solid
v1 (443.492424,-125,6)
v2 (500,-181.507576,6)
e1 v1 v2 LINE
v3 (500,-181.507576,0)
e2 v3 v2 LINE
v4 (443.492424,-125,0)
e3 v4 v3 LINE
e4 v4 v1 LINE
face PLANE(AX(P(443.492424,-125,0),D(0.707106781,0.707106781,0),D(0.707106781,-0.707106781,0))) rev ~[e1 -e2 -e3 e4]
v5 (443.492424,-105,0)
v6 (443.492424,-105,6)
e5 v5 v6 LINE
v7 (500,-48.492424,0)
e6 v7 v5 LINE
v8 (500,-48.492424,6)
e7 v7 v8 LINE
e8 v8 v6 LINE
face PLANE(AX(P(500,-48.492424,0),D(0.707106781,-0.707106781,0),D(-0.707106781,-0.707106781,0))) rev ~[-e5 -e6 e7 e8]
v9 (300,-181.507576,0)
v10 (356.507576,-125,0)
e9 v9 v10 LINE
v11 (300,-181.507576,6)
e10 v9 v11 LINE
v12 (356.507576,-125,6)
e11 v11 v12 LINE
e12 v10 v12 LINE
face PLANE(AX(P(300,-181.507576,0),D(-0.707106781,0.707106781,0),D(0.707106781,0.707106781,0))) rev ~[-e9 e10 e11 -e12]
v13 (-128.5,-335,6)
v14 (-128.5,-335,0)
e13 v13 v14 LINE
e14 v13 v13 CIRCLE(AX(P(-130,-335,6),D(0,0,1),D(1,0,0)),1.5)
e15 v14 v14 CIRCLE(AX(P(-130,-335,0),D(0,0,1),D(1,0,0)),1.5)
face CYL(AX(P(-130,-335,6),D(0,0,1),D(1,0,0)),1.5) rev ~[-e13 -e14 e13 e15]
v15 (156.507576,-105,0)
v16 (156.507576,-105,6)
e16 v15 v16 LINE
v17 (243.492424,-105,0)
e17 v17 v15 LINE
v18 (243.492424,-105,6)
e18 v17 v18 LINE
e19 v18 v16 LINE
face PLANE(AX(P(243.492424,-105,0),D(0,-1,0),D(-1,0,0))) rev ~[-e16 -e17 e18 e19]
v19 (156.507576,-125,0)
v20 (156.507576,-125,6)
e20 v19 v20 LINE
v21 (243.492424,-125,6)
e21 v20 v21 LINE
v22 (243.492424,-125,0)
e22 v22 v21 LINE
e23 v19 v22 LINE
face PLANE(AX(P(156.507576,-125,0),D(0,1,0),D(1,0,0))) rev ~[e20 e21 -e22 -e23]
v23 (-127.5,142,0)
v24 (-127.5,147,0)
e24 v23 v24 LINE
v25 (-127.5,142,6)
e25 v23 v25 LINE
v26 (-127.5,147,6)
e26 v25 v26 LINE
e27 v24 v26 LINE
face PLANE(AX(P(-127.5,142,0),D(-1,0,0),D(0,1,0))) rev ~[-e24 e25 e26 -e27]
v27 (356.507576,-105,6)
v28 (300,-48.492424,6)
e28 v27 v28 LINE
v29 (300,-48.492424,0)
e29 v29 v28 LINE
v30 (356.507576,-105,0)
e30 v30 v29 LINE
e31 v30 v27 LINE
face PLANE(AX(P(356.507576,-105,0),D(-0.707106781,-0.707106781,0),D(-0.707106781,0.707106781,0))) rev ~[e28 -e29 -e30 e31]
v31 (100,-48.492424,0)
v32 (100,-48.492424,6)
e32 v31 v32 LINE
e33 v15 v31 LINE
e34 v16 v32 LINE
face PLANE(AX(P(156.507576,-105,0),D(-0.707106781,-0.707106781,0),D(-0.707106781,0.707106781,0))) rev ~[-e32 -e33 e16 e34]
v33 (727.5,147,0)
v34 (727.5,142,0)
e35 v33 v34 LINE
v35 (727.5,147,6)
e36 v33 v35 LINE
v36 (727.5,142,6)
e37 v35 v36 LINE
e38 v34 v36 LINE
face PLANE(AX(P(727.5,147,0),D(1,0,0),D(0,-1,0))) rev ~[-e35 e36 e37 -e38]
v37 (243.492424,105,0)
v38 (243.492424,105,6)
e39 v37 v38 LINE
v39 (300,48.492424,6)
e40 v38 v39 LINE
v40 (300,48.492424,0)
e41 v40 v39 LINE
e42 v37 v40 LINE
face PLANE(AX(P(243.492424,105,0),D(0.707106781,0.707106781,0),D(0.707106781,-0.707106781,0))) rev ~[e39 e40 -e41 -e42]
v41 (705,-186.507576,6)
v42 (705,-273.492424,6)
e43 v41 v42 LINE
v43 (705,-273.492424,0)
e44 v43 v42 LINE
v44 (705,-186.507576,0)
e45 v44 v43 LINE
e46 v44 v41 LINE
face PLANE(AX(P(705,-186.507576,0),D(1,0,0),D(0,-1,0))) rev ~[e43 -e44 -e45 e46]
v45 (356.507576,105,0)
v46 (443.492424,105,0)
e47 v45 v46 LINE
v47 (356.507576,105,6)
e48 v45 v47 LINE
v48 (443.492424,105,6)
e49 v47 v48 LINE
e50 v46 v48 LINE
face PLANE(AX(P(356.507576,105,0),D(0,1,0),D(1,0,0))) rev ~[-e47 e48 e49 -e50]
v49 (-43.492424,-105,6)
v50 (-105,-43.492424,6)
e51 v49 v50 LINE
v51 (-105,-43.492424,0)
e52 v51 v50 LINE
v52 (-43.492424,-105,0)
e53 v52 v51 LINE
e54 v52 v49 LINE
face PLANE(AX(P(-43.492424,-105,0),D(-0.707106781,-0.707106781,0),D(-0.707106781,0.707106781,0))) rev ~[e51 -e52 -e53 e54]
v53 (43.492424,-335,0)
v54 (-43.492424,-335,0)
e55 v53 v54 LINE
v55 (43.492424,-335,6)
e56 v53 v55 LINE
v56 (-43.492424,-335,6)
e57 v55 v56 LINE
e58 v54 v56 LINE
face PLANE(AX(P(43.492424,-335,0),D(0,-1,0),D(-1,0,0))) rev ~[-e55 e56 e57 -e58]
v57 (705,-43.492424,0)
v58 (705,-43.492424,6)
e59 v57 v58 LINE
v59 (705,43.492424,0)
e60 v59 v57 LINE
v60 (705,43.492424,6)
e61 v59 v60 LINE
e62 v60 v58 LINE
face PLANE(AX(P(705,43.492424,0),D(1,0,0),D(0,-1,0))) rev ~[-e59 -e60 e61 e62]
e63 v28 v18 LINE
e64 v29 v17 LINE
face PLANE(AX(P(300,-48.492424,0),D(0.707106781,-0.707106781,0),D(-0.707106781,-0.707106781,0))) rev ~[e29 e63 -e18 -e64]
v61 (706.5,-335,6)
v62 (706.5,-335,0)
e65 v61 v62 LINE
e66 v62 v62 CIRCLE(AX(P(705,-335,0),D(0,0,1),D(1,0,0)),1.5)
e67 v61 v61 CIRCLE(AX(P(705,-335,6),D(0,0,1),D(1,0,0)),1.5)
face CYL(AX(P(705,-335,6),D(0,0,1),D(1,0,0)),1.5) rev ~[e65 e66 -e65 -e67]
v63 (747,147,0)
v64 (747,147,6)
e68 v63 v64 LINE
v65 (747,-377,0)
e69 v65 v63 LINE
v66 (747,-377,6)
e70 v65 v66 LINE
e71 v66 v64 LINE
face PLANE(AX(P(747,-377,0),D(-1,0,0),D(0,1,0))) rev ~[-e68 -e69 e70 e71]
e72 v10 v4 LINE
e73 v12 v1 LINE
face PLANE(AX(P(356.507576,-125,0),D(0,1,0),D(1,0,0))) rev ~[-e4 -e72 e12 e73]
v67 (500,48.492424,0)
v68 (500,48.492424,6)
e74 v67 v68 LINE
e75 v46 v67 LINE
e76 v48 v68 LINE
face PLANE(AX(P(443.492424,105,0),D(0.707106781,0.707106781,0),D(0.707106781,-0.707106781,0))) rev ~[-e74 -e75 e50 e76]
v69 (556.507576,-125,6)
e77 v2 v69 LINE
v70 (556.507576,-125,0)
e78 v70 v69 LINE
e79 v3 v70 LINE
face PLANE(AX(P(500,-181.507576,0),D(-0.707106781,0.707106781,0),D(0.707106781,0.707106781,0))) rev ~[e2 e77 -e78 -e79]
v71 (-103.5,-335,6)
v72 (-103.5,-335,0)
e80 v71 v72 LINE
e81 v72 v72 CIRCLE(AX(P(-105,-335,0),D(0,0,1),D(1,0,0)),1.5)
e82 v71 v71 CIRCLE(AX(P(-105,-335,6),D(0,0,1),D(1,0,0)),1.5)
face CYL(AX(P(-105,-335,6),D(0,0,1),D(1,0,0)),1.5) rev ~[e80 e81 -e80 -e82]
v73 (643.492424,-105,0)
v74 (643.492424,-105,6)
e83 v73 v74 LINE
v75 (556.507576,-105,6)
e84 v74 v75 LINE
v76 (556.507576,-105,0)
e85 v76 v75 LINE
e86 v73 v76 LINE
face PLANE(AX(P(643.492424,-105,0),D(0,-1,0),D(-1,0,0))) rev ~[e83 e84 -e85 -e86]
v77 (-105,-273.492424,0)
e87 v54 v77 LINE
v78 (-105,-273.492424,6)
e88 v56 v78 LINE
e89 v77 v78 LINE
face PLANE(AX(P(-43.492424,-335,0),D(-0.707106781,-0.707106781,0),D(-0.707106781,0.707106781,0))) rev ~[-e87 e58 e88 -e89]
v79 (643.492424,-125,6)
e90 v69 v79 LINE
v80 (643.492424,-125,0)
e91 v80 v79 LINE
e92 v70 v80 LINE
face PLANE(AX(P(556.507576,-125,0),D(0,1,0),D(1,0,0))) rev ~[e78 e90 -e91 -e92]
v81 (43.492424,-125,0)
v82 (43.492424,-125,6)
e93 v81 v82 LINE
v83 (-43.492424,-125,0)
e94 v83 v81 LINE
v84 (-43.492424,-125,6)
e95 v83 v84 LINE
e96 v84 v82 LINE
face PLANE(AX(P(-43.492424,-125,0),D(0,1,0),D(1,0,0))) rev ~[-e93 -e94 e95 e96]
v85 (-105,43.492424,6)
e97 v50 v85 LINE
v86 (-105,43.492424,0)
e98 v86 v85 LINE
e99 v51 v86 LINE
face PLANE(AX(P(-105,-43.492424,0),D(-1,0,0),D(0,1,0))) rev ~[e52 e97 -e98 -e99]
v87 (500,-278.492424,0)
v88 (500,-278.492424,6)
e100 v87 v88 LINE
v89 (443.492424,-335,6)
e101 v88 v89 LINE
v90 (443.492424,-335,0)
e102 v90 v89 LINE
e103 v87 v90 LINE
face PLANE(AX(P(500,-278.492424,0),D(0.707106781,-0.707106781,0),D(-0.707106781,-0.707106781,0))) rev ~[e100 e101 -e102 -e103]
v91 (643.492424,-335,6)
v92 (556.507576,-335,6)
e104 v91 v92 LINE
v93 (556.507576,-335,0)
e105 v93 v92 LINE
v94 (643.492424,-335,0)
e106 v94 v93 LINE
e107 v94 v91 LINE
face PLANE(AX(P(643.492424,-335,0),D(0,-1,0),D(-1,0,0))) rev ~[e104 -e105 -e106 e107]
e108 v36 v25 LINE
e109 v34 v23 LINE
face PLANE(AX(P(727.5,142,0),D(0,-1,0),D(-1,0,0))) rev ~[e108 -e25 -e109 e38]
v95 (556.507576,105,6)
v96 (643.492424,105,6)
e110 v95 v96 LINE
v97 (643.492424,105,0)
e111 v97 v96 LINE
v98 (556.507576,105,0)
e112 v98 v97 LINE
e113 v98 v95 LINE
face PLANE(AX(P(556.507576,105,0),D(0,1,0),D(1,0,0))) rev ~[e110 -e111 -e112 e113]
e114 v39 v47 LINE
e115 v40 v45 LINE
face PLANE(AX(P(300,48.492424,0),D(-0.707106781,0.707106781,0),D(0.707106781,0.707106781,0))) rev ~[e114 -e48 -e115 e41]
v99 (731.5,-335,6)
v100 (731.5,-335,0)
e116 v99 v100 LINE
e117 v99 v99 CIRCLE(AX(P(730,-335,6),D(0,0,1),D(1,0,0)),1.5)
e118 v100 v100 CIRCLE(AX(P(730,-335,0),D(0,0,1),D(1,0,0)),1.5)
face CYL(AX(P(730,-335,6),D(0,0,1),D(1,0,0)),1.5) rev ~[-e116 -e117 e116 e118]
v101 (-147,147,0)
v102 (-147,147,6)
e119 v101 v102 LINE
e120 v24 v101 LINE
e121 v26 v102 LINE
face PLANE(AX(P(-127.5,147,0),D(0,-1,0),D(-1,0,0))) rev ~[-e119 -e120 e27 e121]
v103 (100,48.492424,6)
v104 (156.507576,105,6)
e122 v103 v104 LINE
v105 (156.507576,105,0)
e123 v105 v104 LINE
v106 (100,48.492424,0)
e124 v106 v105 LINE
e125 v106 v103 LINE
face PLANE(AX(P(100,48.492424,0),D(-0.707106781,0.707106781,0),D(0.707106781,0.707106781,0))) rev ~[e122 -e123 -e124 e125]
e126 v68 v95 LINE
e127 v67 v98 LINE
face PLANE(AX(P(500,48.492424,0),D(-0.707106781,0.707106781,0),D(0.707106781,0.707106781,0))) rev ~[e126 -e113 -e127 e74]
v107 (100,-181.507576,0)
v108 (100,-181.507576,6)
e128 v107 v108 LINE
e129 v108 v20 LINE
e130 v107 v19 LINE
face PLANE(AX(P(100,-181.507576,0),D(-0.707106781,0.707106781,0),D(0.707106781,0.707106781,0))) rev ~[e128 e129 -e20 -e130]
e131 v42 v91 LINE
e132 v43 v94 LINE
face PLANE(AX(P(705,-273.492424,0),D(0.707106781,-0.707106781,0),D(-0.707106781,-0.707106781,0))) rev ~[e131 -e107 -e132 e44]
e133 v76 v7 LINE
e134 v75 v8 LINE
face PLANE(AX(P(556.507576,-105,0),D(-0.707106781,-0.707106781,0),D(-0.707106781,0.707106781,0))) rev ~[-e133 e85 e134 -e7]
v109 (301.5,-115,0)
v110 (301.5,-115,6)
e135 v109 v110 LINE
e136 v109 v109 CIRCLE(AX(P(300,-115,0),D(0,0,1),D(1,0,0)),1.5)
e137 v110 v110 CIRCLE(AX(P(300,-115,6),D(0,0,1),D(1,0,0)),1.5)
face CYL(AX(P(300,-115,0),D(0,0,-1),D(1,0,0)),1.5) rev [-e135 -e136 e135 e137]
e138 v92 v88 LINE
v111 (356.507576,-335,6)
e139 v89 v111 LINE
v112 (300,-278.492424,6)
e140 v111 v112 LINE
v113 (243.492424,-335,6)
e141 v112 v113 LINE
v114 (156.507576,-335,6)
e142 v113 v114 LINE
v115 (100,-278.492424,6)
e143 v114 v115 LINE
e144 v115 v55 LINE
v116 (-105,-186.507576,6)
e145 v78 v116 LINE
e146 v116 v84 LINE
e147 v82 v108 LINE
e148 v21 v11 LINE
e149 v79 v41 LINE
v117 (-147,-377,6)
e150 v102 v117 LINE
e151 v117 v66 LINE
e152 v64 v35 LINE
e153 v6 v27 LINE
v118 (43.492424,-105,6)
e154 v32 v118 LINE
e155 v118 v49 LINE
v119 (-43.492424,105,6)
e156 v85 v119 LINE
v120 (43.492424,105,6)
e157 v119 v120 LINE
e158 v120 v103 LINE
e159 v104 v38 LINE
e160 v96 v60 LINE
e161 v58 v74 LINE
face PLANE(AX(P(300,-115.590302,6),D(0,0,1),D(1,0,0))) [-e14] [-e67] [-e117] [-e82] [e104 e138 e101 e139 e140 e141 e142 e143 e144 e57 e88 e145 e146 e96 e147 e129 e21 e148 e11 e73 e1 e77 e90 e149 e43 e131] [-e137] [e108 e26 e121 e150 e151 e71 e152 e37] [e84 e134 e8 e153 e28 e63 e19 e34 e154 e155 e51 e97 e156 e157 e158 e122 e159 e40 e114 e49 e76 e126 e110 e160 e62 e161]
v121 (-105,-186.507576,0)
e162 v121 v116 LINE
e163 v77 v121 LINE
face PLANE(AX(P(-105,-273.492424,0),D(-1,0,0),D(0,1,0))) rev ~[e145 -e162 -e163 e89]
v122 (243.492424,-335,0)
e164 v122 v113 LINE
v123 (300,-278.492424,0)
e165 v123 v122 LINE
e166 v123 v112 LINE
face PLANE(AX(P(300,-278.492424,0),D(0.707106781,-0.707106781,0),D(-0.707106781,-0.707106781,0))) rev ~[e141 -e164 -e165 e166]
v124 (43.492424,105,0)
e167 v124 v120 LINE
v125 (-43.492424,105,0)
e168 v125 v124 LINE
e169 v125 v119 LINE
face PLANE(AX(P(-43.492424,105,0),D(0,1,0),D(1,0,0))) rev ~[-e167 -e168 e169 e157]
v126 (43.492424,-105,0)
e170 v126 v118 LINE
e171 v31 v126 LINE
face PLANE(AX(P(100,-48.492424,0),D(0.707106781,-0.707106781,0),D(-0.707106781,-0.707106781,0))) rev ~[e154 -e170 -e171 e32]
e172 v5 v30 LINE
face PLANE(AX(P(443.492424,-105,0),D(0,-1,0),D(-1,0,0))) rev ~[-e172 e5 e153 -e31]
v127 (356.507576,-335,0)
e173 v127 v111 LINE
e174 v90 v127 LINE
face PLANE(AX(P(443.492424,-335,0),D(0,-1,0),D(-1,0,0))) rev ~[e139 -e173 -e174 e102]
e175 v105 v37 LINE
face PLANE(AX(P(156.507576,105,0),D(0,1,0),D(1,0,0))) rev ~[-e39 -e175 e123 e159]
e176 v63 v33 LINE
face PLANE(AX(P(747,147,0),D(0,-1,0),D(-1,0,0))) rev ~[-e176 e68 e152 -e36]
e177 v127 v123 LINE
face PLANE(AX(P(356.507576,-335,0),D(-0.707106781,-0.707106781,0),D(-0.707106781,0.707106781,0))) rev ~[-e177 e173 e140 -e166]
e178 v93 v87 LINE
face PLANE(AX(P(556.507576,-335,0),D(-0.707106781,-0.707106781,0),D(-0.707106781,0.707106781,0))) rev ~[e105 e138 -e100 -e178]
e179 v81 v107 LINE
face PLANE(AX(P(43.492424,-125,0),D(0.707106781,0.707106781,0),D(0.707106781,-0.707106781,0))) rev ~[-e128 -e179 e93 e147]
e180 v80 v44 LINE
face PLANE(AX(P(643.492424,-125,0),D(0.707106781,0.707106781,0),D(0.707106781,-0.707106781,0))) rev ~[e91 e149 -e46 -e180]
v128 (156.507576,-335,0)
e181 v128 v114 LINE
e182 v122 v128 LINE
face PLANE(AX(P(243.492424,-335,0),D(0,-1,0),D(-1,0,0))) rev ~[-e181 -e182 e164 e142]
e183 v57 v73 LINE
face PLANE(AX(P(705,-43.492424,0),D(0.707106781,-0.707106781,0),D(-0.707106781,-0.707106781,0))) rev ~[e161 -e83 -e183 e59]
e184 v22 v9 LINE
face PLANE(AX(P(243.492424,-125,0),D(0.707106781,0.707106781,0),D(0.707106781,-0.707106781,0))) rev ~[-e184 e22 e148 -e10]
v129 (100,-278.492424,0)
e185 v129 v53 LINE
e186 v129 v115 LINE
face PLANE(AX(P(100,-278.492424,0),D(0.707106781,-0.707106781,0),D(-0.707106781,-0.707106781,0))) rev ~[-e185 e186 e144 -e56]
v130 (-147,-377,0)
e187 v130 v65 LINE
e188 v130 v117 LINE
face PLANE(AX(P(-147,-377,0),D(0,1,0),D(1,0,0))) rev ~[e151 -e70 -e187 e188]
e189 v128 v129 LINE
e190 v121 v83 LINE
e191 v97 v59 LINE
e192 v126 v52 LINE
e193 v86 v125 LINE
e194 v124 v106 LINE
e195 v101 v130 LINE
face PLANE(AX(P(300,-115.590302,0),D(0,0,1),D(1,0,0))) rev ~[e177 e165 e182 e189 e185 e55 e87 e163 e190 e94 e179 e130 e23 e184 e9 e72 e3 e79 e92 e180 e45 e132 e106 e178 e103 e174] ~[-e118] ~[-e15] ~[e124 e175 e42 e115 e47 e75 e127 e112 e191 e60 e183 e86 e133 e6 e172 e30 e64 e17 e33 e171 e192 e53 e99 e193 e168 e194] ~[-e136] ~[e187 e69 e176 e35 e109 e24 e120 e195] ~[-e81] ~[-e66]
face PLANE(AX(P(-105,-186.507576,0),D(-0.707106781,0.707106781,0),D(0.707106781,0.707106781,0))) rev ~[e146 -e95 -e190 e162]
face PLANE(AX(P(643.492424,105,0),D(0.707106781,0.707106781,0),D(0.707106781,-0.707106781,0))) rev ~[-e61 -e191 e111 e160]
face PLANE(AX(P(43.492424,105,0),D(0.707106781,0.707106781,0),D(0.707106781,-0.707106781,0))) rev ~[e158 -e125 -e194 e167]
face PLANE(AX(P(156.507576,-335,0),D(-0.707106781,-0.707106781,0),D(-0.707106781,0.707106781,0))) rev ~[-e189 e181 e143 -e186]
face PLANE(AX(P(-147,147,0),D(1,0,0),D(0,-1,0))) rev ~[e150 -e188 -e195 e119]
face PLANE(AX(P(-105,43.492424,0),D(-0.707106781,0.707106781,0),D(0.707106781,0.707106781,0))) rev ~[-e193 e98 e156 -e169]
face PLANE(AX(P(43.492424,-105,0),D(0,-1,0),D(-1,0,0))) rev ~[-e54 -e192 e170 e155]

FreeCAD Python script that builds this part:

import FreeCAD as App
import Part
import Sketcher
Q = App.Units.Quantity


def add_polygon(sketch, points):
    """Adds a closed chain of lines whose ends are joined by coincident constraints."""
    first, n = sketch.GeometryCount, len(points)
    for a, b in zip(points, points[1:] + points[:1]):
        sketch.addGeometry(Part.LineSegment(App.Vector(*a, 0), App.Vector(*b, 0)), False)
    for i in range(n):
        sketch.addConstraint(Sketcher.Constraint("Coincident", first + i, 2, first + (i + 1) % n, 1))

doc = App.newDocument("Part")
body = doc.addObject("PartDesign::Body", "Body")

# Sketch on XY plane
sketch1 = doc.addObject("Sketcher::SketchObject", "Sketch")
body.addObject(sketch1)
sketch1.AttachmentSupport = (doc.XY_Plane, [""])
sketch1.MapMode = "FlatFace"
add_polygon(sketch1, [(-127.5, 147), (-147, 147), (-147, -377), (747, -377), (747, 147), (727.5, 147), (727.5, 142), (-127.5, 142)])  # lines 0-7
add_polygon(sketch1, [(100, -278.5), (43.5, -335), (-43.5, -335), (-105, -273.5), (-105, -186.5), (-43.5, -125), (43.5, -125), (100, -181.5), (156.5, -125), (243.5, -125), (300, -181.5), (356.5, -125), (443.5, -125), (500, -181.5), (556.5, -125), (643.5, -125), (705, -186.5), (705, -273.5), (643.5, -335), (556.5, -335), (500, -278.5), (443.5, -335), (356.5, -335), (300, -278.5), (243.5, -335), (156.5, -335)])  # lines 8-33
sketch1.addGeometry(Part.Circle(App.Vector(300, -115, 0), App.Vector(0, 0, 1), 1.5), False)  # 34
add_polygon(sketch1, [(-43.5, 105), (43.5, 105), (100, 48.5), (156.5, 105), (243.5, 105), (300, 48.5), (356.5, 105), (443.5, 105), (500, 48.5), (556.5, 105), (643.5, 105), (705, 43.5), (705, -43.5), (643.5, -105), (556.5, -105), (500, -48.5), (443.5, -105), (356.5, -105), (300, -48.5), (243.5, -105), (156.5, -105), (100, -48.5), (43.5, -105), (-43.5, -105), (-105, -43.5), (-105, 43.5)])  # lines 35-60
sketch1.addConstraint([
    Sketcher.Constraint("Horizontal", 0),
    Sketcher.Constraint("Vertical", 1),
    Sketcher.Constraint("Horizontal", 2),
    Sketcher.Constraint("Vertical", 3),
    Sketcher.Constraint("Horizontal", 4),
    Sketcher.Constraint("Vertical", 5),
    Sketcher.Constraint("Horizontal", 6),
    Sketcher.Constraint("Vertical", 7),
    Sketcher.Constraint("Horizontal", 9),
    Sketcher.Constraint("Vertical", 11),
    Sketcher.Constraint("Horizontal", 13),
    Sketcher.Constraint("Horizontal", 16),
    Sketcher.Constraint("Horizontal", 19),
    Sketcher.Constraint("Horizontal", 22),
    Sketcher.Constraint("Vertical", 24),
    Sketcher.Constraint("Horizontal", 26),
    Sketcher.Constraint("Horizontal", 29),
    Sketcher.Constraint("Horizontal", 32),
    Sketcher.Constraint("Horizontal", 35),
    Sketcher.Constraint("Horizontal", 38),
    Sketcher.Constraint("Horizontal", 41),
    Sketcher.Constraint("Horizontal", 44),
    Sketcher.Constraint("Vertical", 46),
    Sketcher.Constraint("Horizontal", 48),
    Sketcher.Constraint("Horizontal", 51),
    Sketcher.Constraint("Horizontal", 54),
    Sketcher.Constraint("Horizontal", 57),
    Sketcher.Constraint("Vertical", 59),
    Sketcher.Constraint("Symmetric", 35, 2, 57, 2, -1, 1),
    Sketcher.Constraint("Symmetric", 44, 2, 47, 2, -1),
    Sketcher.Constraint("Symmetric", 42, 2, 49, 2, -1),
    Sketcher.Constraint("Symmetric", 41, 2, 50, 2, -1),
    Sketcher.Constraint("Symmetric", 39, 2, 52, 2, -1),
    Sketcher.Constraint("Symmetric", 38, 2, 53, 2, -1),
    Sketcher.Constraint("Symmetric", 36, 2, 55, 2, -1),
    Sketcher.Constraint("Perpendicular", 8, 10),
    Sketcher.Constraint("Perpendicular", 10, 12),
    Sketcher.Constraint("Perpendicular", 12, 14),
    Sketcher.Constraint("Perpendicular", 14, 15),
    Sketcher.Constraint("Perpendicular", 15, 17),
    Sketcher.Constraint("Perpendicular", 17, 18),
    Sketcher.Constraint("Perpendicular", 18, 20),
    Sketcher.Constraint("Perpendicular", 20, 21),
    Sketcher.Constraint("Perpendicular", 21, 23),
    Sketcher.Constraint("Perpendicular", 23, 25),
    Sketcher.Constraint("Perpendicular", 25, 27),
    Sketcher.Constraint("Perpendicular", 27, 28),
    Sketcher.Constraint("Perpendicular", 28, 30),
    Sketcher.Constraint("Perpendicular", 30, 31),
    Sketcher.Constraint("Perpendicular", 31, 33),
    Sketcher.Constraint("Parallel", 33, 36),
    Sketcher.Constraint("Perpendicular", 36, 37),
    Sketcher.Constraint("Perpendicular", 37, 39),
    Sketcher.Constraint("Perpendicular", 39, 40),
    Sketcher.Constraint("Perpendicular", 40, 42),
    Sketcher.Constraint("Perpendicular", 42, 43),
    Sketcher.Constraint("Perpendicular", 43, 45),
    Sketcher.Constraint("Perpendicular", 45, 47),
    Sketcher.Constraint("Perpendicular", 47, 49),
    Sketcher.Constraint("Perpendicular", 49, 50),
    Sketcher.Constraint("Perpendicular", 50, 52),
    Sketcher.Constraint("Perpendicular", 53, 55),
    Sketcher.Constraint("Perpendicular", 55, 56),
    Sketcher.Constraint("Perpendicular", 56, 58),
    Sketcher.Constraint("Perpendicular", 58, 60),
    Sketcher.Constraint("Horizontal", 0, 2, 3, 2),
    Sketcher.Constraint("Horizontal", 13, 2, 15, 2),
    Sketcher.Constraint("Horizontal", 14, 2, 17, 2),
    Sketcher.Constraint("Horizontal", 16, 2, 18, 2),
    Sketcher.Constraint("Horizontal", 17, 2, 20, 2),
    Sketcher.Constraint("Horizontal", 19, 2, 21, 2),
    Sketcher.Constraint("Horizontal", 11, 2, 23, 2),
    Sketcher.Constraint("Horizontal", 10, 2, 24, 2),
    Sketcher.Constraint("Horizontal", 9, 2, 25, 2),
    Sketcher.Constraint("Horizontal", 26, 2, 28, 2),
    Sketcher.Constraint("Horizontal", 27, 2, 30, 2),
    Sketcher.Constraint("Horizontal", 29, 2, 31, 2),
    Sketcher.Constraint("Horizontal", 30, 2, 33, 2),
    Sketcher.Constraint("Horizontal", 35, 2, 37, 2),
    Sketcher.Constraint("Horizontal", 36, 2, 39, 2),
    Sketcher.Constraint("Horizontal", 38, 2, 40, 2),
    Sketcher.Constraint("Horizontal", 39, 2, 42, 2),
    Sketcher.Constraint("Horizontal", 41, 2, 43, 2),
    Sketcher.Constraint("Horizontal", 46, 2, 58, 2),
    Sketcher.Constraint("Horizontal", 45, 2, 59, 2),
    Sketcher.Constraint("Vertical", 9, 2, 12, 2),
    Sketcher.Constraint("Vertical", 8, 2, 13, 2),
    Sketcher.Constraint("Vertical", 34, 3, 17, 2),
    Sketcher.Constraint("Vertical", 21, 2, 26, 2),
    Sketcher.Constraint("Vertical", 20, 2, 27, 2),
    Sketcher.Constraint("Vertical", 18, 2, 29, 2),
    Sketcher.Constraint("Vertical", 13, 2, 35, 2),
    Sketcher.Constraint("Vertical", 33, 2, 36, 2),
    Sketcher.Constraint("Vertical", 31, 2, 38, 2),
    Sketcher.Constraint("Vertical", 28, 2, 41, 2),
    Sketcher.Constraint("Vertical", 25, 2, 44, 2),
    Sketcher.Constraint("Vertical", 24, 2, 45, 2),
    Sketcher.Constraint("Vertical", 12, 2, 57, 2),
    Sketcher.Constraint("Equal", 0, 4),
    Sketcher.Constraint("Equal", 13, 16),
    Sketcher.Constraint("Equal", 16, 19),
    Sketcher.Constraint("Equal", 19, 22),
    Sketcher.Constraint("Equal", 57, 11),
    Sketcher.Constraint("Equal", 24, 46),
    Sketcher.Constraint("Diameter", 34, Q("3 mm")),
    Sketcher.Constraint("DistanceX", 2, 1, 2, 2, Q("894 mm")),
    Sketcher.Constraint("DistanceX", 6, 2, 6, 1, Q("855 mm")),
    Sketcher.Constraint("DistanceY", 1, 2, 1, 1, Q("524 mm")),
    Sketcher.Constraint("DistanceY", 5, 2, 5, 1, Q("5 mm")),
    Sketcher.Constraint("DistanceX", -1, 1, 34, 3, Q("300 mm")),
    Sketcher.Constraint("DistanceY", 34, 3, -1, 1, Q("115 mm")),
    Sketcher.Constraint("DistanceX", 0, 2, -1, 1, Q("147 mm")),
    Sketcher.Constraint("DistanceY", -1, 1, 0, 2, Q("147 mm")),
    Sketcher.Constraint("DistanceY", 8, 2, -1, 1, Q("335 mm")),
    Sketcher.Constraint("DistanceX", 10, 2, -1, 1, Q("105 mm")),
    Sketcher.Constraint("DistanceX", 9, 2, 9, 1, Q("86.984848 mm")),
])
pad1 = doc.addObject("PartDesign::Pad", "Pad")
body.addObject(pad1)
pad1.Profile = sketch1
pad1.Length = 6

# Sketch on XY plane
sketch2 = doc.addObject("Sketcher::SketchObject", "Sketch001")
body.addObject(sketch2)
sketch2.AttachmentSupport = (doc.XY_Plane, [""])
sketch2.MapMode = "FlatFace"
sketch2.AttachmentOffset = App.Placement(App.Vector(0, 0, 6), App.Rotation())
sketch2.addGeometry([
    Part.Circle(App.Vector(-105, -335, 0), App.Vector(0, 0, 1), 1.5),
    Part.Circle(App.Vector(-130, -335, 0), App.Vector(0, 0, 1), 1.5),
    Part.Circle(App.Vector(705, -335, 0), App.Vector(0, 0, 1), 1.5),
    Part.Circle(App.Vector(730, -335, 0), App.Vector(0, 0, 1), 1.5),
], False)
sketch2.addConstraint([
    Sketcher.Constraint("Equal", 0, 1),
    Sketcher.Constraint("Equal", 1, 2),
    Sketcher.Constraint("Equal", 2, 3),
    Sketcher.Constraint("Horizontal", 0, 3, 1, 3),
    Sketcher.Constraint("Horizontal", 1, 3, 2, 3),
    Sketcher.Constraint("Horizontal", 2, 3, 3, 3),
    Sketcher.Constraint("Diameter", 0, Q("3 mm")),
    Sketcher.Constraint("DistanceX", 0, 3, -1, 1, Q("105 mm")),
    Sketcher.Constraint("DistanceY", 0, 3, -1, 1, Q("335 mm")),
    Sketcher.Constraint("DistanceX", 1, 3, -1, 1, Q("130 mm")),
    Sketcher.Constraint("DistanceX", -1, 1, 2, 3, Q("705 mm")),
    Sketcher.Constraint("DistanceX", -1, 1, 3, 3, Q("730 mm")),
])
pocket1 = doc.addObject("PartDesign::Pocket", "Pocket")
body.addObject(pocket1)
pocket1.Profile = sketch2
pocket1.Length = 25

doc.recompute()
